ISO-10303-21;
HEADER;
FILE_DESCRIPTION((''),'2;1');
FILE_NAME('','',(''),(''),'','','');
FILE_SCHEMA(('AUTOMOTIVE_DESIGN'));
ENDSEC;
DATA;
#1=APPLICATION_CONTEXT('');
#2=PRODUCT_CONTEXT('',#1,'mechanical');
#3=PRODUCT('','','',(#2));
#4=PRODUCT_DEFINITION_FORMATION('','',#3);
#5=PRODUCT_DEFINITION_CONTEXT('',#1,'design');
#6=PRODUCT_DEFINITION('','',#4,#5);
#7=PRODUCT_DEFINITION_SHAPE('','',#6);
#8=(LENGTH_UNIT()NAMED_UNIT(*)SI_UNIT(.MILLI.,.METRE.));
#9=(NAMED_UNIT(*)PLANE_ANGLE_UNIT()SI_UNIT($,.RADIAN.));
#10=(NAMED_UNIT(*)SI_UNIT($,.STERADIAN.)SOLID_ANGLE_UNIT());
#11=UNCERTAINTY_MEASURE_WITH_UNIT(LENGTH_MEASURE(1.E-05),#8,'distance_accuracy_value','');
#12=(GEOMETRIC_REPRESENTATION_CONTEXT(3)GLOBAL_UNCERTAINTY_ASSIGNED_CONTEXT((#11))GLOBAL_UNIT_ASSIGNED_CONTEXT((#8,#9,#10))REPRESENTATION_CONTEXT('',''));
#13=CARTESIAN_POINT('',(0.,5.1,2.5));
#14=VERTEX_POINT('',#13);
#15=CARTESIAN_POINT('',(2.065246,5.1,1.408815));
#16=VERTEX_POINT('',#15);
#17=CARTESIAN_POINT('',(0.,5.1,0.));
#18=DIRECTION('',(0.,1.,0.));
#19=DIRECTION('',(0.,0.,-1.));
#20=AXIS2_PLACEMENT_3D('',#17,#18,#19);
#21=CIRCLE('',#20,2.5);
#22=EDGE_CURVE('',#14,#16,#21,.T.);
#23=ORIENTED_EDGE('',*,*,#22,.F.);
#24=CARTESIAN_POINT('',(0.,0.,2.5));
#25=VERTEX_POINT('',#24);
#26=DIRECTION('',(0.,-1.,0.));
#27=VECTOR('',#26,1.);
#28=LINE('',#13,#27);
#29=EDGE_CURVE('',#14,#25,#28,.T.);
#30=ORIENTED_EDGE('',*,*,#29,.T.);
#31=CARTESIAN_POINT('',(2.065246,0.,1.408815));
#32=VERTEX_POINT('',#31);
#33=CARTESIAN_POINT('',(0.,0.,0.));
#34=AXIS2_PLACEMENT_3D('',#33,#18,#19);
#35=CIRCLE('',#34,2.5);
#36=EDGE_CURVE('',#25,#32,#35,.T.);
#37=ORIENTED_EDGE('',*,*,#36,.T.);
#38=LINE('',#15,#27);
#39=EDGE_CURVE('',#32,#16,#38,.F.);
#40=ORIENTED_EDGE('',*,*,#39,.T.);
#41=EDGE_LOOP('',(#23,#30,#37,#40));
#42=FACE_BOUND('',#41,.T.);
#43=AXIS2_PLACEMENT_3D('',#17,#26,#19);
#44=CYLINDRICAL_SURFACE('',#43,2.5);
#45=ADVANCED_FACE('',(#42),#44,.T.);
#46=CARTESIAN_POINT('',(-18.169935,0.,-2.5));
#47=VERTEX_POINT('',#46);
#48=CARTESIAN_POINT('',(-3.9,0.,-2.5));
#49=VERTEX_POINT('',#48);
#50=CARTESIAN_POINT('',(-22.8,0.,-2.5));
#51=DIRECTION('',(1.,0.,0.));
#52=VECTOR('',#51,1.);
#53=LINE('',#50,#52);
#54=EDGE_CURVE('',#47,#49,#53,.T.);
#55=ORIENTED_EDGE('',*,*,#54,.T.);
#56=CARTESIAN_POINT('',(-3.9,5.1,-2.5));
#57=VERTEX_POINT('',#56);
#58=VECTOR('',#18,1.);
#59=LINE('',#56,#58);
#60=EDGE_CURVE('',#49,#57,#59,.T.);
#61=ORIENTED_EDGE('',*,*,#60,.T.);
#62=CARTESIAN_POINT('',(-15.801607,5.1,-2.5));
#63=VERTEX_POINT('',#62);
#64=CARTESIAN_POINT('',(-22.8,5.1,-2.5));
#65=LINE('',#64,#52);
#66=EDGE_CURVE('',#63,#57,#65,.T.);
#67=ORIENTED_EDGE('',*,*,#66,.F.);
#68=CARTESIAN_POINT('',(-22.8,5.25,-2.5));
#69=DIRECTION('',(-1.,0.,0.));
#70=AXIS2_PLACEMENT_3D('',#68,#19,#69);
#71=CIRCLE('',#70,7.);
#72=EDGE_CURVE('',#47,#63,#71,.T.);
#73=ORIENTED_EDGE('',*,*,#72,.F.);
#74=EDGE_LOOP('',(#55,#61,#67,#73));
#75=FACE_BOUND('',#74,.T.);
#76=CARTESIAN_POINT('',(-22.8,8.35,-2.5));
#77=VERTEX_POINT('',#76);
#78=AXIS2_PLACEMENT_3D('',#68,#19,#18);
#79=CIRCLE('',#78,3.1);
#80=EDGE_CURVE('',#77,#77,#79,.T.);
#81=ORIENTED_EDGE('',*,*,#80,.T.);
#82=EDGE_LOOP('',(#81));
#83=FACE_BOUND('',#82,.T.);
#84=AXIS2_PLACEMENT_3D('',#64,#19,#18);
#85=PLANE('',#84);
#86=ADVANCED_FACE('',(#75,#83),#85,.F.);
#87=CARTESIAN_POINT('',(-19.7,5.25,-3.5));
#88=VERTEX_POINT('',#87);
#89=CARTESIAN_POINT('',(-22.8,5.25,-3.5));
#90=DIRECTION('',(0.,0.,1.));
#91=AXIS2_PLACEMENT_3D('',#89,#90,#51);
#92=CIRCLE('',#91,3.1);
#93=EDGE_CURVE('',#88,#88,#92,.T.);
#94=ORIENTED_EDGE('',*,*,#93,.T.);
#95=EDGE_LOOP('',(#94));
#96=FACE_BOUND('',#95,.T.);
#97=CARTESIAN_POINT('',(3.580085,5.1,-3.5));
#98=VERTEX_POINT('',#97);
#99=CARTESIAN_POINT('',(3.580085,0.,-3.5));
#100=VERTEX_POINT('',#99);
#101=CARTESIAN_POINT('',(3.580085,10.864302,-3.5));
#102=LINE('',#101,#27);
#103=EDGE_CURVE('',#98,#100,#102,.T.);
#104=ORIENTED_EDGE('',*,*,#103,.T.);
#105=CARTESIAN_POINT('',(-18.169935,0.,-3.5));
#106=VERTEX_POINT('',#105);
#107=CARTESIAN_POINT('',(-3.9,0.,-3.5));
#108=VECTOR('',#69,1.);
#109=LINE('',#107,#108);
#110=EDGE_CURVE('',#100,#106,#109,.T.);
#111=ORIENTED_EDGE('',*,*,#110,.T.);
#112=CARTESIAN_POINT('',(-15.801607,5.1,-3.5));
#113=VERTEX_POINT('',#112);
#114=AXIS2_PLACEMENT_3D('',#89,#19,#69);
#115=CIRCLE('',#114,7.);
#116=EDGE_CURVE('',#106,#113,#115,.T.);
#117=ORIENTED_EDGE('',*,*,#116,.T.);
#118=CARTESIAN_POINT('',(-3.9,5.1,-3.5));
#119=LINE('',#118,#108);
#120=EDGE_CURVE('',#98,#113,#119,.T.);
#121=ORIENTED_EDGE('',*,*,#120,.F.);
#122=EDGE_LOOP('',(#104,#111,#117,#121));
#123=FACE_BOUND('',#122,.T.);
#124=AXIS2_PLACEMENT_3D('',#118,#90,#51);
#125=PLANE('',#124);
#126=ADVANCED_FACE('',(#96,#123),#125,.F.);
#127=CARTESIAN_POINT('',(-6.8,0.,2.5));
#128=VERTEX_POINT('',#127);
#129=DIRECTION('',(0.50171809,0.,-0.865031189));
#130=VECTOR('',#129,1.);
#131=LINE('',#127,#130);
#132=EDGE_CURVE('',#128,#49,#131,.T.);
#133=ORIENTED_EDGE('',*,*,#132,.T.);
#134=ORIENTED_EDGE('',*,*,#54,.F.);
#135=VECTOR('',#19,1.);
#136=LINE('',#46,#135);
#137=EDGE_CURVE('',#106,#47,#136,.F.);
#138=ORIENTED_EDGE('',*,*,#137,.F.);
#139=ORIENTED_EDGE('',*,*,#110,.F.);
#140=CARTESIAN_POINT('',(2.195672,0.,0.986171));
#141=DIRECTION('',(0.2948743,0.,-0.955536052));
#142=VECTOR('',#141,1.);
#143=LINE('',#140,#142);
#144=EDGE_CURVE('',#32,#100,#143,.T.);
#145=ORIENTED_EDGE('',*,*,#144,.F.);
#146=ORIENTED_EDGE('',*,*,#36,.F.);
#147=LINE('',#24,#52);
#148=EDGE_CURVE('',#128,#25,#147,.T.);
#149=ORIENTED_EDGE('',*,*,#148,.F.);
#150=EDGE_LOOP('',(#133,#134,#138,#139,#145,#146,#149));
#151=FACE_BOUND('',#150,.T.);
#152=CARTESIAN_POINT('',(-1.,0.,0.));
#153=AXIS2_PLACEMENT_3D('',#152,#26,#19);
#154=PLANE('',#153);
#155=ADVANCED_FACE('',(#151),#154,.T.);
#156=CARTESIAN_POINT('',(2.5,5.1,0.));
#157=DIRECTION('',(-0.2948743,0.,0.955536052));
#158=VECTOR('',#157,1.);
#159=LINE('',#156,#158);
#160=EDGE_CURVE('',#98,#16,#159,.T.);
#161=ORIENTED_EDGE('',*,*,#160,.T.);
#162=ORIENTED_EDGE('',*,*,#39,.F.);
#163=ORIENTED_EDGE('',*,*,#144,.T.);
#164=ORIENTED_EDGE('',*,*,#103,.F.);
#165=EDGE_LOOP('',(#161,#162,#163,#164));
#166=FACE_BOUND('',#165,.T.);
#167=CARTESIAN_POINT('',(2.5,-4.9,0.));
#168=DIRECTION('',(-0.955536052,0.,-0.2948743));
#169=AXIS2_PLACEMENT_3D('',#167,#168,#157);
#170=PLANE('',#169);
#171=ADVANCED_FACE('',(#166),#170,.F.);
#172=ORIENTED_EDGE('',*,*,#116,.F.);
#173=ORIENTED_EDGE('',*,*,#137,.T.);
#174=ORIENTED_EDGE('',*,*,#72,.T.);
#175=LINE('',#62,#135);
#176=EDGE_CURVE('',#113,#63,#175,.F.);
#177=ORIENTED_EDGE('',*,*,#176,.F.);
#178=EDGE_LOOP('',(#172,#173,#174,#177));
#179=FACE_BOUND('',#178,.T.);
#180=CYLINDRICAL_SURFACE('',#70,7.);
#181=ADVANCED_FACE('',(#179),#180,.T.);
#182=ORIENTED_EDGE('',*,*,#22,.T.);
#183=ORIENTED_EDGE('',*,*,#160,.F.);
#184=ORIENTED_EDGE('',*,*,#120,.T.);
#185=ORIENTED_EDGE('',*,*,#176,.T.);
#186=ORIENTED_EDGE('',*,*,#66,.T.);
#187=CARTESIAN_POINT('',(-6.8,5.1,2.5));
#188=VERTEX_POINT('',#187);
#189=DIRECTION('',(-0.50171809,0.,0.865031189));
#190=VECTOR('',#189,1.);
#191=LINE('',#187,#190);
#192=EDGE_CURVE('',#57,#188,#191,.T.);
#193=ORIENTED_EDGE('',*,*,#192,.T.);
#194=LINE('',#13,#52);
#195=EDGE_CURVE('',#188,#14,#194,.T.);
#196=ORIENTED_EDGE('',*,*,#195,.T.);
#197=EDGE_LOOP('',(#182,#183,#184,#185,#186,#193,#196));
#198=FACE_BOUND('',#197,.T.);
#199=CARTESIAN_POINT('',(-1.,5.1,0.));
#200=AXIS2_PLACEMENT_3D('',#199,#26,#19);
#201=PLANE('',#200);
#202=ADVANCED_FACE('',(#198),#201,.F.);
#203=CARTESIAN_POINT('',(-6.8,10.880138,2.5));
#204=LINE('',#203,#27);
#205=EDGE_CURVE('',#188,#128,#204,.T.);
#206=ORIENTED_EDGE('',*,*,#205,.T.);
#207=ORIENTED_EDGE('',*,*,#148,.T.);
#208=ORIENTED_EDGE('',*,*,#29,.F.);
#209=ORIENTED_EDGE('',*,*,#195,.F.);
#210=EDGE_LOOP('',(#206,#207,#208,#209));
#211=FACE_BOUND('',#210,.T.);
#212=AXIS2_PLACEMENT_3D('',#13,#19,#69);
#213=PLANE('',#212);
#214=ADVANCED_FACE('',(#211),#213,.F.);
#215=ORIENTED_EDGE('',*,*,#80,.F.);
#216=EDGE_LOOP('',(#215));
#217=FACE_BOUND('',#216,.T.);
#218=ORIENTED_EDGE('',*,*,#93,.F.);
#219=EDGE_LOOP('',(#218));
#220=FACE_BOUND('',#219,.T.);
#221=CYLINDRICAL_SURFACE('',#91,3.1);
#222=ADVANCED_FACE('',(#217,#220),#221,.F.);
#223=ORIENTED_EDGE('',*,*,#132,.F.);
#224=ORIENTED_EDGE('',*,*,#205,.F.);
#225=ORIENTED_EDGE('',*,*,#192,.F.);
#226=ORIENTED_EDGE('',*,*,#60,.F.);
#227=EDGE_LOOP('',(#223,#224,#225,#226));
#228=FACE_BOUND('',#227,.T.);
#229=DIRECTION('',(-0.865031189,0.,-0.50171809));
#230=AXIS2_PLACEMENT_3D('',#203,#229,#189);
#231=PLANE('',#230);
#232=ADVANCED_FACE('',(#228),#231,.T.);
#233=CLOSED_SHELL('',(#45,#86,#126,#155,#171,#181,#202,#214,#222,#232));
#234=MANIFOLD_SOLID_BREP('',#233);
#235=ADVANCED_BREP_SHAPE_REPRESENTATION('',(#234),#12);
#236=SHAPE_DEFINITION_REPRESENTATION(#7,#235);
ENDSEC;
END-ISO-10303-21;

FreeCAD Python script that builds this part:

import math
import FreeCAD as App
import Part
import Sketcher

V = App.Vector
Q = App.Units.Quantity


def add_polygon(sketch, points):
    """Adds a closed chain of lines whose ends are joined by coincident constraints."""
    first, n = sketch.GeometryCount, len(points)
    for a, b in zip(points, points[1:] + points[:1]):
        sketch.addGeometry(Part.LineSegment(App.Vector(*a, 0), App.Vector(*b, 0)), False)
    for i in range(n):
        sketch.addConstraint(Sketcher.Constraint("Coincident", first + i, 2, first + (i + 1) % n, 1))

doc = App.newDocument("Part")
body = doc.addObject("PartDesign::Body", "Body")

sketch1 = body.newObject("Sketcher::SketchObject", "Sketch")
sketch1.AttachmentSupport = (doc.getObject("XZ_Plane"), [""])
sketch1.MapMode = "FlatFace"
sketch1.addGeometry([
    Part.LineSegment(V(-3.9, 2.5, 0), V(0, 2.5, 0)),
    Part.ArcOfCircle(Part.Circle(V(0, 0, 0), V(0, 0, 1), 2.5), math.radians(0), math.radians(90)),
    Part.ArcOfCircle(Part.Circle(V(-1, 0, 0), V(0, 0, 1), 3.5), math.radians(-90), math.radians(0)),
    Part.LineSegment(V(-1, -3.5, 0), V(-3.9, -3.5, 0)),
    Part.LineSegment(V(-3.9, -3.5, 0), V(-3.9, 2.5, 0)),
], False)
sketch1.addConstraint([
    Sketcher.Constraint("Tangent", 0, 2, 1, 2),
    Sketcher.Constraint("Tangent", 1, 1, 2, 2),
    Sketcher.Constraint("Tangent", 2, 1, 3, 1),
    Sketcher.Constraint("Coincident", 3, 2, 4, 1),
    Sketcher.Constraint("Coincident", 4, 2, 0, 1),
    Sketcher.Constraint("Horizontal", 0),
    Sketcher.Constraint("Horizontal", 3),
    Sketcher.Constraint("Vertical", 4),
    Sketcher.Constraint("Coincident", 1, 3, -1, 1),
    Sketcher.Constraint("PointOnObject", 2, 3, -1),
    Sketcher.Constraint("Radius", 1, 2.5),
    Sketcher.Constraint("Radius", 2, 3.5),
    Sketcher.Constraint("DistanceX", 0, 1, 0, 2, 3.9),
])
pad1 = body.newObject("PartDesign::Pad", "Pad")
pad1.Profile = sketch1
pad1.Length = 5.1
pad1.Reversed = True

sketch2 = body.newObject("Sketcher::SketchObject", "Sketch001")
sketch2.AttachmentSupport = (doc.getObject("YZ_Plane"), [""])
sketch2.MapMode = "FlatFace"
sketch2.AttachmentOffset = App.Placement(V(0, 0, -3.9), App.Rotation())
add_polygon(sketch2, [(5.1, -3.5), (0, -3.5), (0, -2.5), (5.1, -2.5)])
sketch2.addConstraint([
    Sketcher.Constraint("Horizontal", 0),
    Sketcher.Constraint("Vertical", 1),
    Sketcher.Constraint("Horizontal", 2),
    Sketcher.Constraint("Vertical", 3),
    Sketcher.Constraint("PointOnObject", 0, 2, -2),
    Sketcher.Constraint("DistanceY", 1, 1, 1, 2, 1.0),
    Sketcher.Constraint("DistanceX", 0, 2, 0, 1, 5.1),
    Sketcher.Constraint("DistanceY", 0, 2, -1, 1, 3.5),
])
pad2 = body.newObject("PartDesign::Pad", "Pad001")
pad2.Profile = sketch2
pad2.Length = 18.9
pad2.Reversed = True

sketch3 = body.newObject("Sketcher::SketchObject", "Sketch002")
sketch3.AttachmentSupport = (doc.getObject("XY_Plane"), [""])
sketch3.MapMode = "FlatFace"
sketch3.AttachmentOffset = App.Placement(V(0, 0, -3.5), App.Rotation())
sketch3.addGeometry(Part.Circle(V(-23, 5, 0), V(0, 0, 1), 7), False)
sketch3.addConstraint([
    Sketcher.Constraint("Diameter", 0, 14.0),
    Sketcher.Constraint("DistanceX", 0, 3, -1, 1, 22.8),
    Sketcher.Constraint("DistanceY", -1, 1, 0, 3, 5.25),
])
pad3 = body.newObject("PartDesign::Pad", "Pad002")
pad3.Profile = sketch3
pad3.Length = 1

sketch4 = body.newObject("Sketcher::SketchObject", "Sketch003")
sketch4.AttachmentSupport = (doc.getObject("XY_Plane"), [""])
sketch4.MapMode = "FlatFace"
sketch4.AttachmentOffset = App.Placement(V(0, 0, -2.5), App.Rotation())
sketch4.addGeometry(Part.Circle(V(-22.8, 5.2, 0), V(0, 0, 1), 3.1), False)
sketch4.addConstraint([
    Sketcher.Constraint("Diameter", 0, 6.2),
    Sketcher.Constraint("DistanceX", 0, 3, -1, 1, 22.8),
    Sketcher.Constraint("DistanceY", -1, 1, 0, 3, 5.25),
])
pocket1 = body.newObject("PartDesign::Pocket", "Pocket")
pocket1.Profile = sketch4
pocket1.Type = "ThroughAll"
pocket1.Midplane = True

sketch5 = body.newObject("Sketcher::SketchObject", "Sketch004")
sketch5.AttachmentSupport = (doc.getObject("XZ_Plane"), [""])
sketch5.MapMode = "FlatFace"
add_polygon(sketch5, [(-3.9, -2.5), (-3.9, 2.5), (-6.8, 2.5)])
sketch5.addConstraint([
    Sketcher.Constraint("Vertical", 0),
    Sketcher.Constraint("Horizontal", 1),
    Sketcher.Constraint("DistanceY", 0, 1, 0, 2, 5.0),
    Sketcher.Constraint("DistanceX", 1, 2, 1, 1, 2.9),
    Sketcher.Constraint("DistanceX", 0, 2, -1, 1, 3.9),
    Sketcher.Constraint("DistanceY", -1, 1, 0, 2, 2.5),
])
pad4 = body.newObject("PartDesign::Pad", "Pad003")
pad4.Profile = sketch5
pad4.Length = 5.1
pad4.Reversed = True

sketch6 = body.newObject("Sketcher::SketchObject", "Sketch005")
sketch6.AttachmentSupport = (doc.getObject("XZ_Plane"), [""])
sketch6.MapMode = "FlatFace"
sketch6.AttachmentOffset = App.Placement(V(0, 0, -5.1), App.Rotation())
add_polygon(sketch6, [(2.5, 0), (1, 5), (6, 5), (6, 0)])
sketch6.addConstraint([
    Sketcher.Constraint("Horizontal", 1),
    Sketcher.Constraint("Vertical", 2),
    Sketcher.Constraint("Horizontal", 3),
    Sketcher.Constraint("PointOnObject", 2, 2, -1),
    Sketcher.Constraint("Equal", 1, 2),
    Sketcher.Constraint("DistanceX", 1, 1, 1, 2, 5.0),
    Sketcher.Constraint("DistanceX", -1, 1, 3, 2, 2.5),
    Sketcher.Constraint("Angle", 0, Q("107.15 deg")),
])
pocket2 = body.newObject("PartDesign::Pocket", "Pocket001")
pocket2.Profile = sketch6
pocket2.Length = 10
pocket2.Reversed = True

sketch7 = body.newObject("Sketcher::SketchObject", "Sketch006")
sketch7.AttachmentSupport = (doc.getObject("XZ_Plane"), [""])
sketch7.MapMode = "FlatFace"
add_polygon(sketch7, [(2.5, 0), (3.6, -3.5), (-1, -3.5)])
sketch7.addConstraint([
    Sketcher.Constraint("Horizontal", 1),
    Sketcher.Constraint("PointOnObject", 2, 2, -1),
    Sketcher.Constraint("Angle", 2, Q("45 deg")),
    Sketcher.Constraint("DistanceX", 1, 2, -1, 1, 1.0),
    Sketcher.Constraint("DistanceY", 0, 2, -1, 1, 3.5),
    Sketcher.Constraint("Angle", 0, Q("-72.85 deg")),
])
pad5 = body.newObject("PartDesign::Pad", "Pad004")
pad5.Profile = sketch7
pad5.Length = 5.1
pad5.Reversed = True

doc.recompute()
